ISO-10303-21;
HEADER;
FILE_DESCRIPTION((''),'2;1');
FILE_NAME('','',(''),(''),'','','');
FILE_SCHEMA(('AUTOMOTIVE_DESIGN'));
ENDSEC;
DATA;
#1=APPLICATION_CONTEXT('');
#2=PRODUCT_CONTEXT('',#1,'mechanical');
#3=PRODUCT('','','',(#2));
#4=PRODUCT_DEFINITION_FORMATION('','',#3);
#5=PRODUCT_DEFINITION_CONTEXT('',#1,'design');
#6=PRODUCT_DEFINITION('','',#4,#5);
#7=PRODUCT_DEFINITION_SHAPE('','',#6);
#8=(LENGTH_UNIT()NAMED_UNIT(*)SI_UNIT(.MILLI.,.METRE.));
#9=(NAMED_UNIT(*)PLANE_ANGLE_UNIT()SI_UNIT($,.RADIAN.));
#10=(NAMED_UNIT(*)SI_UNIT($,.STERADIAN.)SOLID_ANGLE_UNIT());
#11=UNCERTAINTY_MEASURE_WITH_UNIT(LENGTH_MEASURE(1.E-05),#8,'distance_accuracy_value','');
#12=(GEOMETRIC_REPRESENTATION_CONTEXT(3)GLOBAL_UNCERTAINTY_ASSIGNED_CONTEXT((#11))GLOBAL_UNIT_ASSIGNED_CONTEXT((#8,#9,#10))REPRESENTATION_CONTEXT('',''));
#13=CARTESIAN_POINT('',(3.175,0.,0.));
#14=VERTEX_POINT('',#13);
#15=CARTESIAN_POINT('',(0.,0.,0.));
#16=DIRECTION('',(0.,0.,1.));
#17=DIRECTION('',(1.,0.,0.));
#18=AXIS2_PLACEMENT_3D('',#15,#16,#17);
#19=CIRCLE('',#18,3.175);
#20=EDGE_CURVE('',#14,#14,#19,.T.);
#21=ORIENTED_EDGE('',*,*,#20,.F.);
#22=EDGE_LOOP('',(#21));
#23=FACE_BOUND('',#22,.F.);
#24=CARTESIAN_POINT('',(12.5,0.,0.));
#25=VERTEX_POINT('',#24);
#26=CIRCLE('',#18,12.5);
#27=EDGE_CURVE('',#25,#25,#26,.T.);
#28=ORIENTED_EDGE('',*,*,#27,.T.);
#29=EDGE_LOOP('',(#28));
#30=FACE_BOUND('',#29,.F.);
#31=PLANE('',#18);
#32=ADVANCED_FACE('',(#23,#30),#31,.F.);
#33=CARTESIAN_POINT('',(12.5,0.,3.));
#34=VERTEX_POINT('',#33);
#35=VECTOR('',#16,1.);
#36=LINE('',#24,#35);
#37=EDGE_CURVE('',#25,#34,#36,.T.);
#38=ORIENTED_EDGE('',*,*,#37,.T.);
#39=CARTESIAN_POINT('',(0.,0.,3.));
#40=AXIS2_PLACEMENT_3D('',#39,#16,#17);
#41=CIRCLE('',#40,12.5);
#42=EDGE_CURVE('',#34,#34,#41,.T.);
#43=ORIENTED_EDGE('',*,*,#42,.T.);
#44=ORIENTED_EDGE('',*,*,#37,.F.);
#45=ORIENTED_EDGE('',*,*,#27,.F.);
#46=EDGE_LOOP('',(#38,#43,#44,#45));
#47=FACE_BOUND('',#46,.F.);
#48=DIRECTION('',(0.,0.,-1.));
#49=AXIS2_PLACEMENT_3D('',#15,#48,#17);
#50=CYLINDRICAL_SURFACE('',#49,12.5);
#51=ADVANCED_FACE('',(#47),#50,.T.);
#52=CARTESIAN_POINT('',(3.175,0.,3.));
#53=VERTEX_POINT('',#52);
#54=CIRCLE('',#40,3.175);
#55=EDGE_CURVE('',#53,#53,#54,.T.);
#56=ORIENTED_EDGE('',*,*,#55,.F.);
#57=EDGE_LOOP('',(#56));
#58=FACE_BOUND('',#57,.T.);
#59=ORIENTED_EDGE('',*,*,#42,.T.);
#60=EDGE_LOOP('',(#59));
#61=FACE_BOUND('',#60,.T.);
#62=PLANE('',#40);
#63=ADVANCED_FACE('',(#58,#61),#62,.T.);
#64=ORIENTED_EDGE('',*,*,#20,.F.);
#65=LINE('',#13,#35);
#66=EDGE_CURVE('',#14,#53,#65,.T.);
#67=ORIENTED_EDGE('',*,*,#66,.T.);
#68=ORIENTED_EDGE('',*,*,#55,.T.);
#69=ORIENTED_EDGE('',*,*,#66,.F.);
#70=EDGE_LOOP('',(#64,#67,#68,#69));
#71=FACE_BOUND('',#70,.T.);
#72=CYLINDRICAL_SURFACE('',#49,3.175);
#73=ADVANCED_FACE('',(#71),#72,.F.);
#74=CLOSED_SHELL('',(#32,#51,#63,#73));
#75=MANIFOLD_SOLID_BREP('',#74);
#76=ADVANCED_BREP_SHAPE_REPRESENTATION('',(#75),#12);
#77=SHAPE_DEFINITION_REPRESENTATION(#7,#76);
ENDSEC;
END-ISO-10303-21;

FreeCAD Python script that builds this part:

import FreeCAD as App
import Part
import Sketcher
from FreeCAD import Vector

doc = App.newDocument("Part")
body = doc.addObject("PartDesign::Body", "Body")

# Sketch on XY plane
sketch1 = doc.addObject("Sketcher::SketchObject", "Sketch")
body.addObject(sketch1)
sketch1.AttachmentSupport = (doc.XY_Plane, [""])
sketch1.MapMode = "FlatFace"
sketch1.addGeometry([
    Part.Circle(Vector(0, 0, 0), Vector(0, 0, 1), 12.5),
    Part.Circle(Vector(0, 0, 0), Vector(0, 0, 1), 3.2),
], False)
sketch1.addConstraint([
    Sketcher.Constraint("Coincident", 0, 3, -1, 1),
    Sketcher.Constraint("Coincident", 1, 3, -1, 1),
    Sketcher.Constraint("Diameter", 0, 25.0),
    Sketcher.Constraint("Diameter", 1, 6.35),
])
pad1 = doc.addObject("PartDesign::Pad", "Pad")
body.addObject(pad1)
pad1.Profile = sketch1
pad1.Length = 3

doc.recompute()
